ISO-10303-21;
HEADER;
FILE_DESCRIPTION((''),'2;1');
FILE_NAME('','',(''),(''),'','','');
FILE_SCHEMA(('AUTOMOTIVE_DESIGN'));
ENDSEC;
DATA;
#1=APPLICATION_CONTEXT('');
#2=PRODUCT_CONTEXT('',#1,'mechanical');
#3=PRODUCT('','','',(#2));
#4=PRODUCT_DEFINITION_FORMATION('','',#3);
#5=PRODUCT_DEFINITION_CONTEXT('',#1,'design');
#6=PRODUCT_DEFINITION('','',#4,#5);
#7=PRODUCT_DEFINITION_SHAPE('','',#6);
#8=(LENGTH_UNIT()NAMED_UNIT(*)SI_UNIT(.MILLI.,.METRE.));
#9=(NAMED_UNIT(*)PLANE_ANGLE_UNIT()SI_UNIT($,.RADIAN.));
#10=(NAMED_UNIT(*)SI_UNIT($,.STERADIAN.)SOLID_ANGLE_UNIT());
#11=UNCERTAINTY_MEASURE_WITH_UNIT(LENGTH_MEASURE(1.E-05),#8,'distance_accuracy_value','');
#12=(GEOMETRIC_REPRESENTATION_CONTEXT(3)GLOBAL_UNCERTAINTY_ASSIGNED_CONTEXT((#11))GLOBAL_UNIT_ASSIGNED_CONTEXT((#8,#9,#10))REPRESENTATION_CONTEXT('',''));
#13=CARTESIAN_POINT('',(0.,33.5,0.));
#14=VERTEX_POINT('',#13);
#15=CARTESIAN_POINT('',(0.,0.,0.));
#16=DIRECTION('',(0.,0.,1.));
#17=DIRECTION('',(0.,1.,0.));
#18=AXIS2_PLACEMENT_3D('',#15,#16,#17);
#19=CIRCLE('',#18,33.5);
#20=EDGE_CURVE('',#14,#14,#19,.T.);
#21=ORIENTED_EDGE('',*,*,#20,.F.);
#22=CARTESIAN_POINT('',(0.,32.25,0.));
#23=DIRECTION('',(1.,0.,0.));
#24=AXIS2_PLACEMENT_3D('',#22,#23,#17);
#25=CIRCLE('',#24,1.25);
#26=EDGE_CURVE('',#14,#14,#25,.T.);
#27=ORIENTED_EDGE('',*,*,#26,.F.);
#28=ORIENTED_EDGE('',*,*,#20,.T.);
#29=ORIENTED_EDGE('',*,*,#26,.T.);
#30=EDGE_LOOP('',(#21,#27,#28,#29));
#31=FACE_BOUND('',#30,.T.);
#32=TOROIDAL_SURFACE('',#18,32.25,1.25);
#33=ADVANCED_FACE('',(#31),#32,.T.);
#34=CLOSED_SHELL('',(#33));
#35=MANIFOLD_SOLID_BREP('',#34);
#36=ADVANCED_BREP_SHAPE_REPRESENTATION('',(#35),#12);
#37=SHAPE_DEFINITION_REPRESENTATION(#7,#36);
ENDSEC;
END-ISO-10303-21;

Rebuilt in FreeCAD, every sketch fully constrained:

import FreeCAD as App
import Part
import Sketcher
from FreeCAD import Vector
Q = App.Units.Quantity

doc = App.newDocument("Part")
body = doc.addObject("PartDesign::Body", "Body")

# Sketch on YZ plane
sketch1 = body.newObject("Sketcher::SketchObject", "Sketch")
sketch1.AttachmentSupport = (doc.getObject("YZ_Plane"), [""])
sketch1.MapMode = "FlatFace"
sketch1.addGeometry(Part.Circle(Vector(32.2, 0, 0), Vector(0, 0, 1), 1.2), False)
sketch1.addConstraint([
    Sketcher.Constraint("PointOnObject", 0, 3, -1),
    Sketcher.Constraint("Diameter", 0, Q("2.5 mm")),
    Sketcher.Constraint("DistanceX", -1, 1, 0, 3, Q("32.25 mm")),
])
revolution = body.newObject("PartDesign::Revolution", "Revolution")
revolution.Profile = sketch1
revolution.ReferenceAxis = (sketch1, ["V_Axis"])
revolution.Angle = 360

doc.recompute()
